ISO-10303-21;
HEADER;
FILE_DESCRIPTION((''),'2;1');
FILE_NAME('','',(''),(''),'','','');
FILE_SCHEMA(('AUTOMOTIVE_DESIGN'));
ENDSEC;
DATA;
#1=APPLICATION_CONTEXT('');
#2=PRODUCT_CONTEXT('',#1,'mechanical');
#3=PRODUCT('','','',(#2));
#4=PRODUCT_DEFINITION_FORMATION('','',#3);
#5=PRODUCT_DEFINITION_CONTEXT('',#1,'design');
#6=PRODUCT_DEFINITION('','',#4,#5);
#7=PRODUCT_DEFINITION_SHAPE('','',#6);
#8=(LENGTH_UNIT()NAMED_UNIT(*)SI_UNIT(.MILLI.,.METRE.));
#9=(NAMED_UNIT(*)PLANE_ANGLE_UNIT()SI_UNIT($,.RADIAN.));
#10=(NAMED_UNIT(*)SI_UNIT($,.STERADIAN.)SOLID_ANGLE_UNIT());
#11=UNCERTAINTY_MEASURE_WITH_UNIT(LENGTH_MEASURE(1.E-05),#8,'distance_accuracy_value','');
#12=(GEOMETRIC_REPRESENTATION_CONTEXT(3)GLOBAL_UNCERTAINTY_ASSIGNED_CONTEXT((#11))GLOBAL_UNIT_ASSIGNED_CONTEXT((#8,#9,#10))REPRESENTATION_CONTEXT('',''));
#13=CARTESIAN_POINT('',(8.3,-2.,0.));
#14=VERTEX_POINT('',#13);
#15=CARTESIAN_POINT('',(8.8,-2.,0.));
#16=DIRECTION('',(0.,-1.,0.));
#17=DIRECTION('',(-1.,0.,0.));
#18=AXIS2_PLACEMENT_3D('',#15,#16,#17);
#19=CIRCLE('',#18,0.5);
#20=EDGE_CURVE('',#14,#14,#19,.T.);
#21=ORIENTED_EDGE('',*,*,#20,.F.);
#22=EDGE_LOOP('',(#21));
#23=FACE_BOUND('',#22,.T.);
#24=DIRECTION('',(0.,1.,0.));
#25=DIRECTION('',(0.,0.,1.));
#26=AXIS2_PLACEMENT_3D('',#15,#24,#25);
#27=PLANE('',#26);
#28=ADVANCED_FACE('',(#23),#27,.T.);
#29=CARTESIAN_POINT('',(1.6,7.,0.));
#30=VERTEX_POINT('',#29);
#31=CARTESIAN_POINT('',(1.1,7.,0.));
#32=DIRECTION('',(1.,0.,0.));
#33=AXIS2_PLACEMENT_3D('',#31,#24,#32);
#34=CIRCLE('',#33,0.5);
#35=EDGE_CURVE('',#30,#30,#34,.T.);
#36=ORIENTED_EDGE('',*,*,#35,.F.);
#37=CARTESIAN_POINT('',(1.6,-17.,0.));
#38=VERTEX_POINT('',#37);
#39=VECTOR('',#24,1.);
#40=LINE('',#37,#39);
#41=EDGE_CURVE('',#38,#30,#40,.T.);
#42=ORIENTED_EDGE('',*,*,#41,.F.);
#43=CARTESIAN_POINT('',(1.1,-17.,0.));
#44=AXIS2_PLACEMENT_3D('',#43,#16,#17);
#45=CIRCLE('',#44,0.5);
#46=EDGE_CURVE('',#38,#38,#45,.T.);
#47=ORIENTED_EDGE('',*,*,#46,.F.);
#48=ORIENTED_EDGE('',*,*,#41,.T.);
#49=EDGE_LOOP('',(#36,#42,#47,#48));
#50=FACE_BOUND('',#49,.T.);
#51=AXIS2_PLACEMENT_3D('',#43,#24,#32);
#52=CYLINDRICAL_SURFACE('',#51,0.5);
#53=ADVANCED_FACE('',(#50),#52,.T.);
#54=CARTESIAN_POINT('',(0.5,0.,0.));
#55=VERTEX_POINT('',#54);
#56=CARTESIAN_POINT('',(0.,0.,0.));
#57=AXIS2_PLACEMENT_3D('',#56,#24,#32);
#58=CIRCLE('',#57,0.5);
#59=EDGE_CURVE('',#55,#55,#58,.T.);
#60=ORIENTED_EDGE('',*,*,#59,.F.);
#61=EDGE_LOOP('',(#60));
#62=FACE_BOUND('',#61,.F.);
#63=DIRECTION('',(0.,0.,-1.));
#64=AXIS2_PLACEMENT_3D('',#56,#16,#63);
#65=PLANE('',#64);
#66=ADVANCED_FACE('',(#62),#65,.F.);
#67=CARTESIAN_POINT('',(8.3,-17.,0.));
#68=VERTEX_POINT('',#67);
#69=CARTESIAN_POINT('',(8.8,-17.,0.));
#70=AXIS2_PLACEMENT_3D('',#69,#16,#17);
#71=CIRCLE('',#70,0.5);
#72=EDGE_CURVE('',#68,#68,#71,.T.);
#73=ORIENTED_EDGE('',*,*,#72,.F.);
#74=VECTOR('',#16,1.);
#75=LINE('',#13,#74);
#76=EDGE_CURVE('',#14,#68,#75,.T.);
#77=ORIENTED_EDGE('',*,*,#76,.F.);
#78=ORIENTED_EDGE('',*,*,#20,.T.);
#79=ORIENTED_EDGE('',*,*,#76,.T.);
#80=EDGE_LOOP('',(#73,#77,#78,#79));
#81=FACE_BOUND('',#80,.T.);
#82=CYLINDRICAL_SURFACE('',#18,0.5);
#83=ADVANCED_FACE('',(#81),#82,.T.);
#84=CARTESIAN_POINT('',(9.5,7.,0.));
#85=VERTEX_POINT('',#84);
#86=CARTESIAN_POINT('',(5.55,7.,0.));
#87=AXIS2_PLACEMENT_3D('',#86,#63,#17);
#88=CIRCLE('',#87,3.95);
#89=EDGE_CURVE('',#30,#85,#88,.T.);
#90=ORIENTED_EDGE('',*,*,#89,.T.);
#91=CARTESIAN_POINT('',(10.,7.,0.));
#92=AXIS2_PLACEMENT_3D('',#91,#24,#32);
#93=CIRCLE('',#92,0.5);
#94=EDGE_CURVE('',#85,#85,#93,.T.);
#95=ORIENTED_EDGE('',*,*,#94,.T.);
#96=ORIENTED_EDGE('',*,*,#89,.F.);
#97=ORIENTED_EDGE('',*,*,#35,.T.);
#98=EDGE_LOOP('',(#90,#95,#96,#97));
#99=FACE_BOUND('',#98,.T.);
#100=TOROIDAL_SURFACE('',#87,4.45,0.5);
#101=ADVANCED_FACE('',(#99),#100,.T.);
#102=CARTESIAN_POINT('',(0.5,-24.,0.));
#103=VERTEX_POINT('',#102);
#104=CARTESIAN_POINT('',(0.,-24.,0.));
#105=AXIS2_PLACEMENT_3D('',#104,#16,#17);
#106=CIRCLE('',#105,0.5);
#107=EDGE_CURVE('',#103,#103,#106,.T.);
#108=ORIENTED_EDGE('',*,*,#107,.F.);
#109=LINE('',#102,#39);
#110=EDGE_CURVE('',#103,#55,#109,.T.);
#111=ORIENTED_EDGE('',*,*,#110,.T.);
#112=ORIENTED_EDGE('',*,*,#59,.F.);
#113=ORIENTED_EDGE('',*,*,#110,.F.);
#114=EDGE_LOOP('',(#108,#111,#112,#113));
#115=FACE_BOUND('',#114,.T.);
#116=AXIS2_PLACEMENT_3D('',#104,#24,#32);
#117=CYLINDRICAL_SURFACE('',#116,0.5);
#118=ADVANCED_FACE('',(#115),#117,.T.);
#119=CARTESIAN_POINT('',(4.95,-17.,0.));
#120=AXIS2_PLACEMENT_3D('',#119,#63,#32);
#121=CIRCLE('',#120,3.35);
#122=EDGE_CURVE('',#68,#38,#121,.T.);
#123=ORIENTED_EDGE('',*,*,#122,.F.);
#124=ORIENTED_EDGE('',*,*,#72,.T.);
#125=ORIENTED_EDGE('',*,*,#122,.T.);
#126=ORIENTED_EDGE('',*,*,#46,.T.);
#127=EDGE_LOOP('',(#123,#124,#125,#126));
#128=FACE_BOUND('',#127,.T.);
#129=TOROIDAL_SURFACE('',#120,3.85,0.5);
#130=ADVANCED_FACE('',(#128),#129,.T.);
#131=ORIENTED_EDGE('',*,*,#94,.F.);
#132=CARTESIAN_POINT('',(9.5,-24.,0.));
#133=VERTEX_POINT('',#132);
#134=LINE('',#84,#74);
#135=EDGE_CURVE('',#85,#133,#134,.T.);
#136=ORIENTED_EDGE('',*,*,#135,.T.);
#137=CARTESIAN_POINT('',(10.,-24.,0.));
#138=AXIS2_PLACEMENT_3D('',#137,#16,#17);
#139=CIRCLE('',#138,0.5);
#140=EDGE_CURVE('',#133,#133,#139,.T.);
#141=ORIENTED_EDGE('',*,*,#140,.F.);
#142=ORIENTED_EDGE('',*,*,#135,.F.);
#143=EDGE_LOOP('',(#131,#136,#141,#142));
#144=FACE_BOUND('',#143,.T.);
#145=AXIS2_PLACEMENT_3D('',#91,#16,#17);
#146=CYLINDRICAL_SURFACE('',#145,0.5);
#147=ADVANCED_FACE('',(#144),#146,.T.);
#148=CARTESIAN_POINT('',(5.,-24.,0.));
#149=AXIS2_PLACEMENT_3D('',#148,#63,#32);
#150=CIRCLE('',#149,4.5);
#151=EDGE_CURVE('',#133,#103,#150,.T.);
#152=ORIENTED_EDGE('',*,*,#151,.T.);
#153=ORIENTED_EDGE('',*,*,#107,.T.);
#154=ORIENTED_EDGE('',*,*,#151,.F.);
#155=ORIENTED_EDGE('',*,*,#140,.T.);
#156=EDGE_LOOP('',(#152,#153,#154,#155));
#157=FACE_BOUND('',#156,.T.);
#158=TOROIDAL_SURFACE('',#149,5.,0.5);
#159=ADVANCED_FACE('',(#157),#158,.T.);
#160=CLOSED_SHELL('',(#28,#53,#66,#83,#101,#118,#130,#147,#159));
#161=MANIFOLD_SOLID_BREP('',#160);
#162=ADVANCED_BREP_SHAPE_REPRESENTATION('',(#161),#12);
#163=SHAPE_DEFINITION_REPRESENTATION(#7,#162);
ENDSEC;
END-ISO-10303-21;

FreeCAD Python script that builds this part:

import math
import FreeCAD as App
import Part
import Sketcher

V = App.Vector

doc = App.newDocument("Part")
body = doc.addObject("PartDesign::Body", "Body")

# Sketch on XZ plane
sketch1 = body.newObject("Sketcher::SketchObject", "Sketch")
sketch1.AttachmentSupport = (doc.getObject("XZ_Plane"), [""])
sketch1.MapMode = "FlatFace"
sketch1.addGeometry(Part.Circle(V(0, 0, 0), V(0, 0, 1), 0.5), False)
sketch1.addConstraint(Sketcher.Constraint("Coincident", 0, 3, -1, 1))
sketch1.addConstraint(Sketcher.Constraint("Diameter", 0, 1.0))

# Sketch on XY plane
sketch2 = body.newObject("Sketcher::SketchObject", "Sketch001")
sketch2.AttachmentSupport = (doc.getObject("XY_Plane"), [""])
sketch2.MapMode = "FlatFace"
sketch2.addGeometry(Part.LineSegment(V(8.8, -2, 0), V(8.8, -17, 0)), False)
sketch2.addGeometry(Part.ArcOfCircle(Part.Circle(V(4.95, -17, 0), V(0, 0, 1), 3.85), math.radians(180), math.radians(360)), False)
sketch2.addGeometry(Part.LineSegment(V(1.1, -17, 0), V(1.1, 7, 0)), False)
sketch2.addGeometry(Part.ArcOfCircle(Part.Circle(V(5.55, 7, 0), V(0, 0, 1), 4.45), math.radians(0), math.radians(180)), False)
sketch2.addGeometry(Part.LineSegment(V(10, 7, 0), V(10, -24, 0)), False)
sketch2.addGeometry(Part.ArcOfCircle(Part.Circle(V(5, -24, 0), V(0, 0, 1), 5), math.radians(180), math.radians(360)), False)
sketch2.addGeometry(Part.LineSegment(V(0, -24, 0), V(0, 0, 0)), False)
sketch2.addConstraint(Sketcher.Constraint("Tangent", 0, 2, 1, 2))
sketch2.addConstraint(Sketcher.Constraint("Tangent", 1, 1, 2, 1))
sketch2.addConstraint(Sketcher.Constraint("Tangent", 2, 2, 3, 2))
sketch2.addConstraint(Sketcher.Constraint("Tangent", 3, 1, 4, 1))
sketch2.addConstraint(Sketcher.Constraint("Tangent", 4, 2, 5, 2))
sketch2.addConstraint(Sketcher.Constraint("Tangent", 5, 1, 6, 1))
sketch2.addConstraint(Sketcher.Constraint("Vertical", 0))
sketch2.addConstraint(Sketcher.Constraint("Vertical", 2))
sketch2.addConstraint(Sketcher.Constraint("Vertical", 4))
sketch2.addConstraint(Sketcher.Constraint("Vertical", 6))
sketch2.addConstraint(Sketcher.Constraint("Coincident", 6, 2, -1, 1))
sketch2.addConstraint(Sketcher.Constraint("Equal", 2, 6))
sketch2.addConstraint(Sketcher.Constraint("Radius", 5, 5.0))
sketch2.addConstraint(Sketcher.Constraint("DistanceY", 0, 2, 0, 1, 15.0))
sketch2.addConstraint(Sketcher.Constraint("DistanceY", 2, 1, 2, 2, 24.0))
sketch2.addConstraint(Sketcher.Constraint("DistanceY", 4, 2, 4, 1, 31.0))
sketch2.addConstraint(Sketcher.Constraint("Radius", 1, 3.85))
sketch2.addConstraint(Sketcher.Constraint("Radius", 3, 4.45))
doc.recompute()

additivepipe = body.newObject("PartDesign::AdditivePipe", "AdditivePipe")
additivepipe.Profile = sketch1
additivepipe.Spine = (sketch2, ["Edge1", "Edge2", "Edge3", "Edge4", "Edge5", "Edge6", "Edge7"])

doc.recompute()
